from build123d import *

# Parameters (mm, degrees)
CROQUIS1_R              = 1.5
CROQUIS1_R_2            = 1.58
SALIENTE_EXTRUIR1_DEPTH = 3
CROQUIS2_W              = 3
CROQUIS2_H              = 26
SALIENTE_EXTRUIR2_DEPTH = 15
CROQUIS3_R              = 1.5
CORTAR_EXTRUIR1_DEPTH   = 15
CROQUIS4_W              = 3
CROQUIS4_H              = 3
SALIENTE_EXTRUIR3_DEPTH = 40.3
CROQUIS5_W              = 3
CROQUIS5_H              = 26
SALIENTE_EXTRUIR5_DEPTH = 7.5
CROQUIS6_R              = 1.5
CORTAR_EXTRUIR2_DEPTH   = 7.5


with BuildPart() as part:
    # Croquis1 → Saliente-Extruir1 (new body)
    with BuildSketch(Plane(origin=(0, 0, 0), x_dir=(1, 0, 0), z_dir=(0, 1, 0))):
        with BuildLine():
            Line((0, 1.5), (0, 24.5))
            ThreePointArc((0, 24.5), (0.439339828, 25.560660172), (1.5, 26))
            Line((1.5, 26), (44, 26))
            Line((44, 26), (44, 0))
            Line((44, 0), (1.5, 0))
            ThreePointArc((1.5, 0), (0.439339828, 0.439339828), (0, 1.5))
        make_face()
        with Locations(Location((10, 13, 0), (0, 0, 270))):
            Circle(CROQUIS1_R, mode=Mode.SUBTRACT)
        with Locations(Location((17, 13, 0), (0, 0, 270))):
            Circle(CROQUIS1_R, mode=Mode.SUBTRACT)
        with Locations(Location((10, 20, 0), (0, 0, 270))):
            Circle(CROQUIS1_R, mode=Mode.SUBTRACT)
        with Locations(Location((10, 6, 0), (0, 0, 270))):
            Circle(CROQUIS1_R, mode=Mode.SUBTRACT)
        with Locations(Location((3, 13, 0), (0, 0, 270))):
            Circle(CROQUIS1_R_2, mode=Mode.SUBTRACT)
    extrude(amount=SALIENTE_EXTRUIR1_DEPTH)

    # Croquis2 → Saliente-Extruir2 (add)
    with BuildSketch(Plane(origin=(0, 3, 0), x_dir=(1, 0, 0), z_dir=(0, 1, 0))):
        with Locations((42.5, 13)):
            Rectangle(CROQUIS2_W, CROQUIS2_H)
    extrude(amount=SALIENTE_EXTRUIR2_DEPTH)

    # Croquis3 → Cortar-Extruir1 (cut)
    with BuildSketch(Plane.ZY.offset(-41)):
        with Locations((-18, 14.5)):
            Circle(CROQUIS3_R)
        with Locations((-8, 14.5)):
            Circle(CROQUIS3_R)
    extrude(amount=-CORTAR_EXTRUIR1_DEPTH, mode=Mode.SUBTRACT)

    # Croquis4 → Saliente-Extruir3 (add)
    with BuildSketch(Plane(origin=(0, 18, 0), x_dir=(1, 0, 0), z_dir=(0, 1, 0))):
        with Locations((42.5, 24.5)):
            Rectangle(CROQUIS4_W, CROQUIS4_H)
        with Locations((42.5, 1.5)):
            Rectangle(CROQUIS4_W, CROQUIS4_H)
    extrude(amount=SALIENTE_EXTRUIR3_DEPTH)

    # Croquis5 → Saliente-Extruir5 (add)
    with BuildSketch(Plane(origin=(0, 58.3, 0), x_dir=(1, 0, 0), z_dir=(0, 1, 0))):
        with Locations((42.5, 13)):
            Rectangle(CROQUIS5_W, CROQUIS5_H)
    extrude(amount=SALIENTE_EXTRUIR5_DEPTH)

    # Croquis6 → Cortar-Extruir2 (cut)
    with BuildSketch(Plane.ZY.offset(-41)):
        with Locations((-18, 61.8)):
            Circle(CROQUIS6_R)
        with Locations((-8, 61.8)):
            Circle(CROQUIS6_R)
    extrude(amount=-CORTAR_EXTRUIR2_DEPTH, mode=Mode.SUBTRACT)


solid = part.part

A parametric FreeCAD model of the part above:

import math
import FreeCAD as App
import Part
import Sketcher

V = App.Vector
Q = App.Units.Quantity

doc = App.newDocument("Part")
body = doc.addObject("PartDesign::Body", "Body")

# Sketch on XZ plane
sketch1 = body.newObject("Sketcher::SketchObject", "Sketch")
sketch1.AttachmentSupport = (doc.getObject("XZ_Plane"), [""])
sketch1.MapMode = "FlatFace"
sketch1.addGeometry([
    Part.LineSegment(V(0, -24.5, 0), V(0, -1.5, 0)),  # 0
    Part.ArcOfCircle(Part.Circle(V(1.5, -1.5, 0), V(0, 0, 1), 1.5), math.radians(90), math.radians(180)),  # 1
    Part.LineSegment(V(1.5, 0, 0), V(44, 0, 0)),  # 2
    Part.LineSegment(V(44, 0, 0), V(44, -26, 0)),  # 3
    Part.LineSegment(V(44, -26, 0), V(1.5, -26, 0)),  # 4
    Part.ArcOfCircle(Part.Circle(V(1.5, -24.5, 0), V(0, 0, 1), 1.5), math.radians(180), math.radians(270)),  # 5
    Part.Circle(V(10, -6, 0), V(0, 0, 1), 1.5),  # 6
    Part.Circle(V(17, -13, 0), V(0, 0, 1), 1.5),  # 7
    Part.Circle(V(10, -13, 0), V(0, 0, 1), 1.5),  # 8
    Part.Circle(V(10, -20, 0), V(0, 0, 1), 1.5),  # 9
    Part.Circle(V(3, -13, 0), V(0, 0, 1), 1.6),  # 10
], False)
sketch1.addConstraint([
    Sketcher.Constraint("Tangent", 0, 2, 1, 2),
    Sketcher.Constraint("Tangent", 1, 1, 2, 1),
    Sketcher.Constraint("Coincident", 2, 2, 3, 1),
    Sketcher.Constraint("Coincident", 3, 2, 4, 1),
    Sketcher.Constraint("Tangent", 4, 2, 5, 2),
    Sketcher.Constraint("Tangent", 5, 1, 0, 1),
    Sketcher.Constraint("Vertical", 0),
    Sketcher.Constraint("Horizontal", 2),
    Sketcher.Constraint("Vertical", 3),
    Sketcher.Constraint("Horizontal", 4),
    Sketcher.Constraint("Equal", 1, 5),
    Sketcher.Constraint("Equal", 5, 6),
    Sketcher.Constraint("Equal", 6, 7),
    Sketcher.Constraint("Equal", 7, 8),
    Sketcher.Constraint("Equal", 8, 9),
    Sketcher.Constraint("PointOnObject", 0, 2, -2),
    Sketcher.Constraint("PointOnObject", 1, 1, -1),
    Sketcher.Constraint("Horizontal", 7, 3, 8, 3),
    Sketcher.Constraint("Horizontal", 8, 3, 10, 3),
    Sketcher.Constraint("Vertical", 6, 3, 8, 3),
    Sketcher.Constraint("Vertical", 8, 3, 9, 3),
    Sketcher.Constraint("Diameter", 6, Q("3 mm")),
    Sketcher.Constraint("Diameter", 10, Q("3.16 mm")),
    Sketcher.Constraint("DistanceY", 0, 1, 0, 2, Q("23 mm")),
    Sketcher.Constraint("DistanceX", 2, 1, 2, 2, Q("42.5 mm")),
    Sketcher.Constraint("DistanceX", -1, 1, 6, 3, Q("10 mm")),
    Sketcher.Constraint("DistanceY", 6, 3, -1, 1, Q("6 mm")),
    Sketcher.Constraint("DistanceX", -1, 1, 7, 3, Q("17 mm")),
    Sketcher.Constraint("DistanceY", 7, 3, -1, 1, Q("13 mm")),
    Sketcher.Constraint("DistanceY", 9, 3, -1, 1, Q("20 mm")),
    Sketcher.Constraint("DistanceX", -1, 1, 10, 3, Q("3 mm")),
])
pad1 = body.newObject("PartDesign::Pad", "Pad")
pad1.Profile = sketch1
pad1.Length = 3
pad1.Reversed = True

# Sketch on XZ plane
sketch2 = body.newObject("Sketcher::SketchObject", "Sketch001")
sketch2.AttachmentSupport = (doc.getObject("XZ_Plane"), [""])
sketch2.MapMode = "FlatFace"
sketch2.AttachmentOffset = App.Placement(V(0, 0, -3), App.Rotation())
sketch2.addGeometry([
    Part.LineSegment(V(41, -26, 0), V(41, 0, 0)),
    Part.LineSegment(V(41, 0, 0), V(44, 0, 0)),
    Part.LineSegment(V(44, 0, 0), V(44, -26, 0)),
    Part.LineSegment(V(44, -26, 0), V(41, -26, 0)),
], False)
sketch2.addConstraint([
    Sketcher.Constraint("Coincident", 0, 2, 1, 1),
    Sketcher.Constraint("Coincident", 1, 2, 2, 1),
    Sketcher.Constraint("Coincident", 2, 2, 3, 1),
    Sketcher.Constraint("Coincident", 3, 2, 0, 1),
    Sketcher.Constraint("Vertical", 0),
    Sketcher.Constraint("Horizontal", 1),
    Sketcher.Constraint("Vertical", 2),
    Sketcher.Constraint("Horizontal", 3),
    Sketcher.Constraint("PointOnObject", 0, 2, -1),
    Sketcher.Constraint("DistanceX", 1, 1, 1, 2, Q("3 mm")),
    Sketcher.Constraint("DistanceY", 0, 1, 0, 2, Q("26 mm")),
    Sketcher.Constraint("DistanceX", -1, 1, 0, 2, Q("41 mm")),
])
pad2 = body.newObject("PartDesign::Pad", "Pad001")
pad2.Profile = sketch2
pad2.Length = 15
pad2.Reversed = True

# Sketch on YZ plane
sketch3 = body.newObject("Sketcher::SketchObject", "Sketch002")
sketch3.AttachmentSupport = (doc.getObject("YZ_Plane"), [""])
sketch3.MapMode = "FlatFace"
sketch3.AttachmentOffset = App.Placement(V(0, 0, 41), App.Rotation())
sketch3.addGeometry([
    Part.Circle(V(14.5, -18, 0), V(0, 0, 1), 1.5),
    Part.Circle(V(14.5, -8, 0), V(0, 0, 1), 1.5),
], False)
sketch3.addConstraint([
    Sketcher.Constraint("Equal", 0, 1),
    Sketcher.Constraint("Vertical", 0, 3, 1, 3),
    Sketcher.Constraint("Diameter", 0, Q("3 mm")),
    Sketcher.Constraint("DistanceY", 0, 3, -1, 1, Q("18 mm")),
    Sketcher.Constraint("DistanceY", 1, 3, -1, 1, Q("8 mm")),
    Sketcher.Constraint("DistanceX", -1, 1, 0, 3, Q("14.5 mm")),
])
pocket1 = body.newObject("PartDesign::Pocket", "Pocket")
pocket1.Profile = sketch3
pocket1.Length = 15
pocket1.Reversed = True

# Sketch on XZ plane
sketch4 = body.newObject("Sketcher::SketchObject", "Sketch003")
sketch4.AttachmentSupport = (doc.getObject("XZ_Plane"), [""])
sketch4.MapMode = "FlatFace"
sketch4.AttachmentOffset = App.Placement(V(0, 0, -18), App.Rotation())
sketch4.addGeometry([
    Part.LineSegment(V(41, -26, 0), V(41, -23, 0)),  # 0
    Part.LineSegment(V(41, -23, 0), V(44, -23, 0)),  # 1
    Part.LineSegment(V(44, -23, 0), V(44, -26, 0)),  # 2
    Part.LineSegment(V(44, -26, 0), V(41, -26, 0)),  # 3
    Part.LineSegment(V(41, -3, 0), V(41, 0, 0)),  # 4
    Part.LineSegment(V(41, 0, 0), V(44, 0, 0)),  # 5
    Part.LineSegment(V(44, 0, 0), V(44, -3, 0)),  # 6
    Part.LineSegment(V(44, -3, 0), V(41, -3, 0)),  # 7
], False)
sketch4.addConstraint([
    Sketcher.Constraint("Coincident", 0, 2, 1, 1),
    Sketcher.Constraint("Coincident", 1, 2, 2, 1),
    Sketcher.Constraint("Coincident", 2, 2, 3, 1),
    Sketcher.Constraint("Coincident", 3, 2, 0, 1),
    Sketcher.Constraint("Coincident", 4, 2, 5, 1),
    Sketcher.Constraint("Coincident", 5, 2, 6, 1),
    Sketcher.Constraint("Coincident", 6, 2, 7, 1),
    Sketcher.Constraint("Coincident", 7, 2, 4, 1),
    Sketcher.Constraint("Vertical", 0),
    Sketcher.Constraint("Horizontal", 1),
    Sketcher.Constraint("Vertical", 2),
    Sketcher.Constraint("Horizontal", 3),
    Sketcher.Constraint("Vertical", 4),
    Sketcher.Constraint("Horizontal", 5),
    Sketcher.Constraint("Vertical", 6),
    Sketcher.Constraint("Horizontal", 7),
    Sketcher.Constraint("PointOnObject", 4, 2, -1),
    Sketcher.Constraint("Vertical", 3, 2, 4, 2),
    Sketcher.Constraint("Vertical", 2, 2, 5, 2),
    Sketcher.Constraint("Equal", 7, 0),
    Sketcher.Constraint("Equal", 2, 4),
    Sketcher.Constraint("DistanceX", 1, 1, 1, 2, Q("3 mm")),
    Sketcher.Constraint("DistanceX", -1, 1, 0, 2, Q("41 mm")),
    Sketcher.Constraint("DistanceY", 0, 2, -1, 1, Q("23 mm")),
])
pad3 = body.newObject("PartDesign::Pad", "Pad002")
pad3.Profile = sketch4
pad3.Length = 40.3
pad3.Reversed = True

# Sketch on XZ plane
sketch5 = body.newObject("Sketcher::SketchObject", "Sketch004")
sketch5.AttachmentSupport = (doc.getObject("XZ_Plane"), [""])
sketch5.MapMode = "FlatFace"
sketch5.AttachmentOffset = App.Placement(V(0, 0, -58.3), App.Rotation())
sketch5.addGeometry([
    Part.LineSegment(V(41, -26, 0), V(41, 0, 0)),
    Part.LineSegment(V(41, 0, 0), V(44, 0, 0)),
    Part.LineSegment(V(44, 0, 0), V(44, -26, 0)),
    Part.LineSegment(V(44, -26, 0), V(41, -26, 0)),
], False)
sketch5.addConstraint([
    Sketcher.Constraint("Coincident", 0, 2, 1, 1),
    Sketcher.Constraint("Coincident", 1, 2, 2, 1),
    Sketcher.Constraint("Coincident", 2, 2, 3, 1),
    Sketcher.Constraint("Coincident", 3, 2, 0, 1),
    Sketcher.Constraint("Vertical", 0),
    Sketcher.Constraint("Horizontal", 1),
    Sketcher.Constraint("Vertical", 2),
    Sketcher.Constraint("Horizontal", 3),
    Sketcher.Constraint("PointOnObject", 0, 2, -1),
    Sketcher.Constraint("DistanceX", 1, 1, 1, 2, Q("3 mm")),
    Sketcher.Constraint("DistanceY", 0, 1, 0, 2, Q("26 mm")),
    Sketcher.Constraint("DistanceX", -1, 1, 0, 2, Q("41 mm")),
])
pad4 = body.newObject("PartDesign::Pad", "Pad003")
pad4.Profile = sketch5
pad4.Length = 7.5
pad4.Reversed = True

# Sketch on YZ plane
sketch6 = body.newObject("Sketcher::SketchObject", "Sketch005")
sketch6.AttachmentSupport = (doc.getObject("YZ_Plane"), [""])
sketch6.MapMode = "FlatFace"
sketch6.AttachmentOffset = App.Placement(V(0, 0, 41), App.Rotation())
sketch6.addGeometry([
    Part.Circle(V(61.8, -18, 0), V(0, 0, 1), 1.5),
    Part.Circle(V(61.8, -8, 0), V(0, 0, 1), 1.5),
], False)
sketch6.addConstraint([
    Sketcher.Constraint("Equal", 0, 1),
    Sketcher.Constraint("Vertical", 0, 3, 1, 3),
    Sketcher.Constraint("Diameter", 0, Q("3 mm")),
    Sketcher.Constraint("DistanceY", 0, 3, -1, 1, Q("18 mm")),
    Sketcher.Constraint("DistanceY", 1, 3, -1, 1, Q("8 mm")),
    Sketcher.Constraint("DistanceX", -1, 1, 0, 3, Q("61.8 mm")),
])
pocket2 = body.newObject("PartDesign::Pocket", "Pocket001")
pocket2.Profile = sketch6
pocket2.Length = 7.5
pocket2.Reversed = True

doc.recompute()
